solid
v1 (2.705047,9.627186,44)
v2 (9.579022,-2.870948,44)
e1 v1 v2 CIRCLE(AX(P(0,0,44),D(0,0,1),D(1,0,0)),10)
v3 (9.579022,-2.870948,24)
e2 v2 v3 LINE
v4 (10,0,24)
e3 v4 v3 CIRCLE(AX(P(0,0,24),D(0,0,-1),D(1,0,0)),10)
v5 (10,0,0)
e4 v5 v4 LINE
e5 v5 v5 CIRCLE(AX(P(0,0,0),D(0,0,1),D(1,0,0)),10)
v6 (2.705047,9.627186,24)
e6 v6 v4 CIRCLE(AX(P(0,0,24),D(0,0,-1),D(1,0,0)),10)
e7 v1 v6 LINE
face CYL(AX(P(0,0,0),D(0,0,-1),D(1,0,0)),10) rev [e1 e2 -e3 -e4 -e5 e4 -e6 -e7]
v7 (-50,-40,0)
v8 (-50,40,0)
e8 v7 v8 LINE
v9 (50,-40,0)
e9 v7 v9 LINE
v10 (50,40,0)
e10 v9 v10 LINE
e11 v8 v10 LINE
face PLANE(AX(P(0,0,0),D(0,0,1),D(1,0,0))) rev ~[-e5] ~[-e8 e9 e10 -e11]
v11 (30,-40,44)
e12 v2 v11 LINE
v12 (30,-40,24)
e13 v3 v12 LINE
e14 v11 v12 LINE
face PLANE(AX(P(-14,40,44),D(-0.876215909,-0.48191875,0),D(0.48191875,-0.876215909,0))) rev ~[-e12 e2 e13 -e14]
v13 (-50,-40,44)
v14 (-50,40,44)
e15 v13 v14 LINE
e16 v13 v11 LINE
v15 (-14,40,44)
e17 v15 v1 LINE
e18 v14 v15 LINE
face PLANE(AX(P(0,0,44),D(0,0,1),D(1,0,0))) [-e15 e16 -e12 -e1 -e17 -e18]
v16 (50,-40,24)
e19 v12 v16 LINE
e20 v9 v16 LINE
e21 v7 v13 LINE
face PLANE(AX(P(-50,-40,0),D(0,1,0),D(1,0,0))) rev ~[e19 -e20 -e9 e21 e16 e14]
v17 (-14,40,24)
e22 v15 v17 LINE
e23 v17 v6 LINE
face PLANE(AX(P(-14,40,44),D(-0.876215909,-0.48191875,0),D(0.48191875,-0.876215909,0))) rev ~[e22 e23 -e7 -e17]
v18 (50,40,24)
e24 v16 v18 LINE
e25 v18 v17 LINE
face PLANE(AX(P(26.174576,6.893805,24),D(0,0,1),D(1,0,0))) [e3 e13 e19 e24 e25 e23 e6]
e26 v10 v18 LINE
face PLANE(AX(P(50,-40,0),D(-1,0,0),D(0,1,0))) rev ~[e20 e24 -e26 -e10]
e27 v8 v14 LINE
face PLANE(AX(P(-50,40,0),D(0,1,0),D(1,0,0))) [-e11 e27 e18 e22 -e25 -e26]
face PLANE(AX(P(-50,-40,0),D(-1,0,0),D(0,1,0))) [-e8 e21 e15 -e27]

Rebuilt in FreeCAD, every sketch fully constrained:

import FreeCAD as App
import Part
import Sketcher
from FreeCAD import Vector
Q = App.Units.Quantity


def add_polygon(sketch, points):
    """Adds a closed chain of lines whose ends are joined by coincident constraints."""
    first, n = sketch.GeometryCount, len(points)
    for a, b in zip(points, points[1:] + points[:1]):
        sketch.addGeometry(Part.LineSegment(App.Vector(*a, 0), App.Vector(*b, 0)), False)
    for i in range(n):
        sketch.addConstraint(Sketcher.Constraint("Coincident", first + i, 2, first + (i + 1) % n, 1))

doc = App.newDocument("Part")
body = doc.addObject("PartDesign::Body", "Body")

# Sketch on XY plane
sketch1 = doc.addObject("Sketcher::SketchObject", "Sketch")
body.addObject(sketch1)
sketch1.AttachmentSupport = (doc.XY_Plane, [""])
sketch1.MapMode = "FlatFace"
add_polygon(sketch1, [(-50, 40), (-50, -40), (50, -40), (50, 40)])  # lines 0-3
sketch1.addGeometry(Part.Circle(Vector(0, 0, 0), Vector(0, 0, 1), 10), False)  # 4
sketch1.addConstraint([
    Sketcher.Constraint("Vertical", 0),
    Sketcher.Constraint("Horizontal", 1),
    Sketcher.Constraint("Vertical", 2),
    Sketcher.Constraint("Horizontal", 3),
    Sketcher.Constraint("Coincident", 4, 3, -1, 1),
    Sketcher.Constraint("Symmetric", 0, 2, 2, 2, -1, 1),
    Sketcher.Constraint("Diameter", 4, Q("20 mm")),
    Sketcher.Constraint("DistanceX", 1, 1, 1, 2, Q("100 mm")),
    Sketcher.Constraint("DistanceY", 0, 2, 0, 1, Q("80 mm")),
])
pad1 = doc.addObject("PartDesign::Pad", "Pad")
body.addObject(pad1)
pad1.Profile = sketch1
pad1.Length = 44

# Sketch on XY plane
sketch2 = doc.addObject("Sketcher::SketchObject", "Sketch001")
body.addObject(sketch2)
sketch2.AttachmentSupport = (doc.XY_Plane, [""])
sketch2.MapMode = "FlatFace"
sketch2.AttachmentOffset = App.Placement(Vector(0, 0, 44), App.Rotation())
add_polygon(sketch2, [(50, -40), (50, 40), (-14, 40), (30, -40)])  # lines 0-3
sketch2.addConstraint([
    Sketcher.Constraint("Vertical", 0),
    Sketcher.Constraint("Horizontal", 1),
    Sketcher.Constraint("Horizontal", 3),
    Sketcher.Constraint("DistanceX", 1, 2, 1, 1, Q("64 mm")),
    Sketcher.Constraint("DistanceX", 3, 1, 3, 2, Q("20 mm")),
    Sketcher.Constraint("DistanceY", 0, 1, 0, 2, Q("80 mm")),
    Sketcher.Constraint("DistanceX", -1, 1, 0, 2, Q("50 mm")),
    Sketcher.Constraint("DistanceY", -1, 1, 0, 2, Q("40 mm")),
])
pocket1 = doc.addObject("PartDesign::Pocket", "Pocket")
body.addObject(pocket1)
pocket1.Profile = sketch2
pocket1.Length = 20

doc.recompute()
